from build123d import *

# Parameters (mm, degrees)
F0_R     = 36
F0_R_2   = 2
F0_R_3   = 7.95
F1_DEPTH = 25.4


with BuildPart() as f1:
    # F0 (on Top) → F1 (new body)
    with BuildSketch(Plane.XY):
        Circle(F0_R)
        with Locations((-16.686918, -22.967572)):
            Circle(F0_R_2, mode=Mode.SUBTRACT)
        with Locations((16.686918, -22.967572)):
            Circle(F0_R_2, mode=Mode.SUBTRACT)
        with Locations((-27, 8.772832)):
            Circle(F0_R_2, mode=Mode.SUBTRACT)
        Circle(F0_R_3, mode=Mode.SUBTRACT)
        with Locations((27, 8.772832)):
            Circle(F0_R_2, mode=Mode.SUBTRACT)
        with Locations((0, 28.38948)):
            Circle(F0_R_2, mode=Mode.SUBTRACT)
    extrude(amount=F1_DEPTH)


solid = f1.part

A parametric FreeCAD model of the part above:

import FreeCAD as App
import Part
import Sketcher

V = App.Vector
Q = App.Units.Quantity

doc = App.newDocument("Part")
params = doc.addObject("Spreadsheet::Sheet", "Params")
for row, (alias, value) in enumerate([
    ("sketch1_diameter", "72 mm"),
    ("sketch1_diameter2", "4 mm"),
    ("sketch1_diameter3", "15.9 mm"),
    ("pad1_length", "25.4 mm"),
], start=1):
    params.set(f"A{row}", alias)
    params.set(f"B{row}", "=" + value)
    params.setAlias(f"B{row}", alias)

body = doc.addObject("PartDesign::Body", "Body")

sketch1 = doc.addObject("Sketcher::SketchObject", "Sketch")
body.addObject(sketch1)
sketch1.AttachmentSupport = (doc.XY_Plane, [""])
sketch1.MapMode = "FlatFace"
sketch1.addGeometry([
    Part.Circle(V(0, 0, 0), V(0, 0, 1), 36),
    Part.Circle(V(-16.7, -23, 0), V(0, 0, 1), 2),
    Part.Circle(V(16.7, -23, 0), V(0, 0, 1), 2),
    Part.Circle(V(0, 0, 0), V(0, 0, 1), 8),
    Part.Circle(V(-27, 8.8, 0), V(0, 0, 1), 2),
    Part.Circle(V(27, 8.8, 0), V(0, 0, 1), 2),
    Part.Circle(V(0, 28.4, 0), V(0, 0, 1), 2),
], False)
sketch1.addConstraint([
    Sketcher.Constraint("Coincident", 0, 3, -1, 1),
    Sketcher.Constraint("Coincident", 3, 3, -1, 1),
    Sketcher.Constraint("Equal", 1, 2),
    Sketcher.Constraint("Equal", 2, 4),
    Sketcher.Constraint("Equal", 4, 5),
    Sketcher.Constraint("Equal", 5, 6),
    Sketcher.Constraint("Symmetric", 1, 3, 2, 3, -2),
    Sketcher.Constraint("Symmetric", 4, 3, 5, 3, -2),
    Sketcher.Constraint("PointOnObject", 6, 3, -2),
    Sketcher.Constraint("Diameter", 0, Q("72 mm")),
    Sketcher.Constraint("Diameter", 1, Q("4 mm")),
    Sketcher.Constraint("Diameter", 3, Q("15.9 mm")),
    Sketcher.Constraint("DistanceX", 4, 3, -1, 1, Q("27 mm")),
    Sketcher.Constraint("DistanceY", -1, 1, 4, 3, Q("8.772832 mm")),
    Sketcher.Constraint("DistanceY", -1, 1, 6, 3, Q("28.38948 mm")),
    Sketcher.Constraint("DistanceY", 1, 3, 6, 3, Q("51.357052 mm")),
    Sketcher.Constraint("DistanceX", 1, 3, -1, 1, Q("16.686918 mm")),
])
sketch1.setExpression("Constraints[9]", "Params.sketch1_diameter")
sketch1.setExpression("Constraints[10]", "Params.sketch1_diameter2")
sketch1.setExpression("Constraints[11]", "Params.sketch1_diameter3")
pad1 = doc.addObject("PartDesign::Pad", "Pad")
body.addObject(pad1)
pad1.Profile = sketch1
pad1.setExpression("Length", "Params.pad1_length")

doc.recompute()
